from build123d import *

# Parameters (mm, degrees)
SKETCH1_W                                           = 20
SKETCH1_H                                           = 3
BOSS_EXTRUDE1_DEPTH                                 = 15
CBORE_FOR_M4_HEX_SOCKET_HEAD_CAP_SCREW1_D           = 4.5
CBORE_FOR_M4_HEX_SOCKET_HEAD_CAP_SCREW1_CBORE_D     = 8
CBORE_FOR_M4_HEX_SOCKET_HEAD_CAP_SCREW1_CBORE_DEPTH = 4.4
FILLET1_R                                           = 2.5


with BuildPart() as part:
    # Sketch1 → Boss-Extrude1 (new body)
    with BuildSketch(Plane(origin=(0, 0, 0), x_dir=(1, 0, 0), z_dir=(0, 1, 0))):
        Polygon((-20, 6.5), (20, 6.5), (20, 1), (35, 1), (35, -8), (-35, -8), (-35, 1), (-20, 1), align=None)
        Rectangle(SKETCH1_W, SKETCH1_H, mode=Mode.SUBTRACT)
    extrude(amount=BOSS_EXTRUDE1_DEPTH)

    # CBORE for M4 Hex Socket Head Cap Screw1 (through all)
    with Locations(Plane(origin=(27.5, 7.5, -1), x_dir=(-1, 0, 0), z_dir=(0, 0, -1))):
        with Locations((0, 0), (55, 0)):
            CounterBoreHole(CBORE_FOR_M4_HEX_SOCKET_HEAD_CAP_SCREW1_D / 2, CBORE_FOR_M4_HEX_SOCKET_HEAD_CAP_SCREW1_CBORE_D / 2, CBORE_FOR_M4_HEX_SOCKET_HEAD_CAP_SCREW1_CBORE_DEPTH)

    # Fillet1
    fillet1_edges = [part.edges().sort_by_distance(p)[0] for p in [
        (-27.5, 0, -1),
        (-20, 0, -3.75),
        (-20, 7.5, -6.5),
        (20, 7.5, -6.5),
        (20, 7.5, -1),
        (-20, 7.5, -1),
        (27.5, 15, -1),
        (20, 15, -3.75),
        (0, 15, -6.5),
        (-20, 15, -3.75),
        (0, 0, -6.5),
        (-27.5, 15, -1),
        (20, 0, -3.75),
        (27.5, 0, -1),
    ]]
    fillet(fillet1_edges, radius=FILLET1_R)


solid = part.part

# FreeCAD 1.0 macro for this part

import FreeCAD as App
import Part
import Sketcher
from FreeCAD import Vector
Q = App.Units.Quantity


def edges_at(feature, points):
    """Names of the edges that pass closest to the given points."""
    edges = feature.Shape.Edges
    near = lambda p: min(range(len(edges)), key=lambda i: edges[i].distToShape(Part.Vertex(*p))[0])
    return sorted({f"Edge{near(p) + 1}" for p in points})


def add_polygon(sketch, points):
    """Adds a closed chain of lines whose ends are joined by coincident constraints."""
    first, n = sketch.GeometryCount, len(points)
    for a, b in zip(points, points[1:] + points[:1]):
        sketch.addGeometry(Part.LineSegment(App.Vector(*a, 0), App.Vector(*b, 0)), False)
    for i in range(n):
        sketch.addConstraint(Sketcher.Constraint("Coincident", first + i, 2, first + (i + 1) % n, 1))

doc = App.newDocument("Part")
params = doc.addObject("Spreadsheet::Sheet", "Params")
for row, (alias, value) in enumerate([
    ("sketch1_width", "40 mm"),
    ("sketch1_width2", "15 mm"),
    ("sketch1_width3", "20 mm"),
    ("sketch1_height", "9 mm"),
    ("sketch1_height2", "3 mm"),
    ("pad1_length", "15 mm"),
    ("sketch2_diameter", "4.5 mm"),
    ("hole_diameter", "4.5 mm"),
    ("hole_cbore_diameter", "8 mm"),
    ("hole_cbore_depth", "4.4 mm"),
    ("fillet_radius", "2.5 mm"),
], start=1):
    params.set(f"A{row}", alias)
    params.set(f"B{row}", "=" + value)
    params.setAlias(f"B{row}", alias)

body = doc.addObject("PartDesign::Body", "Body")

sketch1 = doc.addObject("Sketcher::SketchObject", "Sketch")
body.addObject(sketch1)
sketch1.AttachmentSupport = (doc.XZ_Plane, [""])
sketch1.MapMode = "FlatFace"
add_polygon(sketch1, [(20, -6.5), (-20, -6.5), (-20, -1), (-35, -1), (-35, 8), (35, 8), (35, -1), (20, -1)])
add_polygon(sketch1, [(-10, 1.5), (-10, -1.5), (10, -1.5), (10, 1.5)])
sketch1.addConstraint([
    Sketcher.Constraint("Horizontal", 0),
    Sketcher.Constraint("Vertical", 1),
    Sketcher.Constraint("Horizontal", 2),
    Sketcher.Constraint("Vertical", 3),
    Sketcher.Constraint("Horizontal", 4),
    Sketcher.Constraint("Vertical", 5),
    Sketcher.Constraint("Horizontal", 6),
    Sketcher.Constraint("Vertical", 7),
    Sketcher.Constraint("Vertical", 8),
    Sketcher.Constraint("Horizontal", 9),
    Sketcher.Constraint("Vertical", 10),
    Sketcher.Constraint("Horizontal", 11),
    Sketcher.Constraint("Symmetric", 8, 2, 10, 2, -1, 1),
    Sketcher.Constraint("Symmetric", 2, 2, 5, 2, -2),
    Sketcher.Constraint("Equal", 2, 6),
    Sketcher.Constraint("DistanceX", 0, 2, 0, 1, Q("40 mm")),
    Sketcher.Constraint("DistanceX", 2, 2, 2, 1, Q("15 mm")),
    Sketcher.Constraint("DistanceX", 9, 1, 9, 2, Q("20 mm")),
    Sketcher.Constraint("DistanceY", 3, 1, 3, 2, Q("9 mm")),
    Sketcher.Constraint("DistanceY", 8, 2, 8, 1, Q("3 mm")),
    Sketcher.Constraint("DistanceY", 1, 1, 1, 2, Q("5.5 mm")),
    Sketcher.Constraint("DistanceY", 1, 2, -1, 1, Q("1 mm")),
])
sketch1.setExpression("Constraints[27]", "Params.sketch1_width")
sketch1.setExpression("Constraints[28]", "Params.sketch1_width2")
sketch1.setExpression("Constraints[29]", "Params.sketch1_width3")
sketch1.setExpression("Constraints[30]", "Params.sketch1_height")
sketch1.setExpression("Constraints[31]", "Params.sketch1_height2")
pad1 = doc.addObject("PartDesign::Pad", "Pad")
body.addObject(pad1)
pad1.Profile = sketch1
pad1.setExpression("Length", "Params.pad1_length")
pad1.Reversed = True

sketch2 = doc.addObject("Sketcher::SketchObject", "Sketch001")
body.addObject(sketch2)
sketch2.AttachmentSupport = (doc.XY_Plane, [""])
sketch2.MapMode = "FlatFace"
sketch2.AttachmentOffset = App.Placement(Vector(0, 0, -1), App.Rotation())
sketch2.addGeometry([
    Part.Circle(Vector(27.5, 7.5, 0), Vector(0, 0, 1), 2.2),
    Part.Circle(Vector(-27.5, 7.5, 0), Vector(0, 0, 1), 2.2),
], False)
sketch2.addConstraint([
    Sketcher.Constraint("Equal", 0, 1),
    Sketcher.Constraint("Symmetric", 0, 3, 1, 3, -2),
    Sketcher.Constraint("Diameter", 0, Q("4.5 mm")),
    Sketcher.Constraint("DistanceX", 1, 3, 0, 3, Q("55 mm")),
    Sketcher.Constraint("DistanceY", -1, 1, 0, 3, Q("7.5 mm")),
])
sketch2.setExpression("Constraints[2]", "Params.sketch2_diameter")
doc.recompute()
hole = doc.addObject("PartDesign::Hole", "Hole")
body.addObject(hole)
hole.Profile = sketch2
hole.ThreadType = "None"
hole.setExpression("Diameter", "Params.hole_diameter")
hole.DepthType = "ThroughAll"
hole.HoleCutType = "Counterbore"
hole.setExpression("HoleCutDiameter", "Params.hole_cbore_diameter")
hole.setExpression("HoleCutDepth", "Params.hole_cbore_depth")
hole.Reversed = True
doc.recompute()

fillet = doc.addObject("PartDesign::Fillet", "Fillet")
body.addObject(fillet)
fillet.Base = (hole, edges_at(hole, [
    (-27.5, 0, -1),
    (-20, 0, -3.75),
    (-20, 7.5, -6.5),
    (20, 7.5, -6.5),
    (20, 7.5, -1),
    (-20, 7.5, -1),
    (27.5, 15, -1),
    (20, 15, -3.75),
    (0, 15, -6.5),
    (-20, 15, -3.75),
    (0, 0, -6.5),
    (-27.5, 15, -1),
    (20, 0, -3.75),
    (27.5, 0, -1),
]))
fillet.setExpression("Radius", "Params.fillet_radius")

doc.recompute()
